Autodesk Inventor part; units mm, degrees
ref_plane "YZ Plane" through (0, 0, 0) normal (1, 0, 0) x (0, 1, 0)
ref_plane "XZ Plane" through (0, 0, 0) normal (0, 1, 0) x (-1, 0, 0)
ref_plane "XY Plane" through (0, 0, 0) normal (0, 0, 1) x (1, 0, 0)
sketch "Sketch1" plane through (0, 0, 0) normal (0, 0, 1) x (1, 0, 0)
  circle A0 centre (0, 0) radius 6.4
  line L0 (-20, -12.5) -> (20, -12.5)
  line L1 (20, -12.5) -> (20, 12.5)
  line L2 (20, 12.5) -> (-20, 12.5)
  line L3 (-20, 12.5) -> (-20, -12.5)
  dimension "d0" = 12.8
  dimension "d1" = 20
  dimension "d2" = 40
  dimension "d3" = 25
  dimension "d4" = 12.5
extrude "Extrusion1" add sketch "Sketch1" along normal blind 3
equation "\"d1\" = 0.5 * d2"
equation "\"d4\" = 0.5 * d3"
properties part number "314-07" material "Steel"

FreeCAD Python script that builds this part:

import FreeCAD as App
import Part
import Sketcher

V = App.Vector


def add_polygon(sketch, points):
    """Adds a closed chain of lines whose ends are joined by coincident constraints."""
    first, n = sketch.GeometryCount, len(points)
    for a, b in zip(points, points[1:] + points[:1]):
        sketch.addGeometry(Part.LineSegment(App.Vector(*a, 0), App.Vector(*b, 0)), False)
    for i in range(n):
        sketch.addConstraint(Sketcher.Constraint("Coincident", first + i, 2, first + (i + 1) % n, 1))

doc = App.newDocument("Part")
body = doc.addObject("PartDesign::Body", "Body")

# Sketch on XY plane
sketch1 = body.newObject("Sketcher::SketchObject", "Sketch")
sketch1.AttachmentSupport = (doc.getObject("XY_Plane"), [""])
sketch1.MapMode = "FlatFace"
add_polygon(sketch1, [(-20, 12.5), (-20, -12.5), (20, -12.5), (20, 12.5)])  # lines 0-3
sketch1.addGeometry(Part.Circle(V(0, 0, 0), V(0, 0, 1), 6.4), False)  # 4
sketch1.addConstraint(Sketcher.Constraint("Vertical", 0))
sketch1.addConstraint(Sketcher.Constraint("Horizontal", 1))
sketch1.addConstraint(Sketcher.Constraint("Vertical", 2))
sketch1.addConstraint(Sketcher.Constraint("Horizontal", 3))
sketch1.addConstraint(Sketcher.Constraint("Coincident", 4, 3, -1, 1))
sketch1.addConstraint(Sketcher.Constraint("Symmetric", 0, 2, 2, 2, -1, 1))
sketch1.addConstraint(Sketcher.Constraint("Diameter", 4, 12.8))
sketch1.addConstraint(Sketcher.Constraint("DistanceX", 1, 1, 1, 2, 40.0))
sketch1.addConstraint(Sketcher.Constraint("DistanceY", 0, 2, 0, 1, 25.0))
pad1 = body.newObject("PartDesign::Pad", "Pad")
pad1.Profile = sketch1
pad1.Length = 3

doc.recompute()
